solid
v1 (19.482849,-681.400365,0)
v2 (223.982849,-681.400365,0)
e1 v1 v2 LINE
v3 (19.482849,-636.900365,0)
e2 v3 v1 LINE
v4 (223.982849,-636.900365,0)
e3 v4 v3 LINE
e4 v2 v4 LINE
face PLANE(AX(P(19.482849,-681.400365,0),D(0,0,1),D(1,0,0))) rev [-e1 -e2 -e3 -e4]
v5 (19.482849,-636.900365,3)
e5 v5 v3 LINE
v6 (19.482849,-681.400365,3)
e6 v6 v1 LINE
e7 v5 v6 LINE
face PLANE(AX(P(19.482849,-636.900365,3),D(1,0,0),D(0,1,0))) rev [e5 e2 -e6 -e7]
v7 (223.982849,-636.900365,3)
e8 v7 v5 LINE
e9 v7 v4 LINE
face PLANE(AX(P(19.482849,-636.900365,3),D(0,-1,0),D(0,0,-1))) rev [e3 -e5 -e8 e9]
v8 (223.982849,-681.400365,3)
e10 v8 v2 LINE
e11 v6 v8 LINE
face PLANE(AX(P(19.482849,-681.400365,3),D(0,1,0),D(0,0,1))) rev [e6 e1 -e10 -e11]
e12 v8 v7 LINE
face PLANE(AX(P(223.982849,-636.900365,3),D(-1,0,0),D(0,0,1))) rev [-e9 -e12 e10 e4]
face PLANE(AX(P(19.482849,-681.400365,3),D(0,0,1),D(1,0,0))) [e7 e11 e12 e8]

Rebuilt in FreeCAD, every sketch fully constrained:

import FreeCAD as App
import Part
import Sketcher
Q = App.Units.Quantity


def add_polygon(sketch, points):
    """Adds a closed chain of lines whose ends are joined by coincident constraints."""
    first, n = sketch.GeometryCount, len(points)
    for a, b in zip(points, points[1:] + points[:1]):
        sketch.addGeometry(Part.LineSegment(App.Vector(*a, 0), App.Vector(*b, 0)), False)
    for i in range(n):
        sketch.addConstraint(Sketcher.Constraint("Coincident", first + i, 2, first + (i + 1) % n, 1))

doc = App.newDocument("Part")
body = doc.addObject("PartDesign::Body", "Body")

# Sketch on XY plane
sketch1 = body.newObject("Sketcher::SketchObject", "Sketch")
sketch1.AttachmentSupport = (doc.getObject("XY_Plane"), [""])
sketch1.MapMode = "FlatFace"
add_polygon(sketch1, [(19, -637), (19, -681), (224, -681), (224, -637)])  # lines 0-3
sketch1.addConstraint(Sketcher.Constraint("Vertical", 0))
sketch1.addConstraint(Sketcher.Constraint("Horizontal", 1))
sketch1.addConstraint(Sketcher.Constraint("Vertical", 2))
sketch1.addConstraint(Sketcher.Constraint("Horizontal", 3))
sketch1.addConstraint(Sketcher.Constraint("DistanceX", 1, 1, 1, 2, Q("204.5 mm")))
sketch1.addConstraint(Sketcher.Constraint("DistanceY", 0, 2, 0, 1, Q("44.5 mm")))
sketch1.addConstraint(Sketcher.Constraint("DistanceX", -1, 1, 0, 2, Q("19.482849 mm")))
sketch1.addConstraint(Sketcher.Constraint("DistanceY", 0, 2, -1, 1, Q("681.400365 mm")))
pad1 = body.newObject("PartDesign::Pad", "Pad")
pad1.Profile = sketch1
pad1.Length = 3

doc.recompute()
